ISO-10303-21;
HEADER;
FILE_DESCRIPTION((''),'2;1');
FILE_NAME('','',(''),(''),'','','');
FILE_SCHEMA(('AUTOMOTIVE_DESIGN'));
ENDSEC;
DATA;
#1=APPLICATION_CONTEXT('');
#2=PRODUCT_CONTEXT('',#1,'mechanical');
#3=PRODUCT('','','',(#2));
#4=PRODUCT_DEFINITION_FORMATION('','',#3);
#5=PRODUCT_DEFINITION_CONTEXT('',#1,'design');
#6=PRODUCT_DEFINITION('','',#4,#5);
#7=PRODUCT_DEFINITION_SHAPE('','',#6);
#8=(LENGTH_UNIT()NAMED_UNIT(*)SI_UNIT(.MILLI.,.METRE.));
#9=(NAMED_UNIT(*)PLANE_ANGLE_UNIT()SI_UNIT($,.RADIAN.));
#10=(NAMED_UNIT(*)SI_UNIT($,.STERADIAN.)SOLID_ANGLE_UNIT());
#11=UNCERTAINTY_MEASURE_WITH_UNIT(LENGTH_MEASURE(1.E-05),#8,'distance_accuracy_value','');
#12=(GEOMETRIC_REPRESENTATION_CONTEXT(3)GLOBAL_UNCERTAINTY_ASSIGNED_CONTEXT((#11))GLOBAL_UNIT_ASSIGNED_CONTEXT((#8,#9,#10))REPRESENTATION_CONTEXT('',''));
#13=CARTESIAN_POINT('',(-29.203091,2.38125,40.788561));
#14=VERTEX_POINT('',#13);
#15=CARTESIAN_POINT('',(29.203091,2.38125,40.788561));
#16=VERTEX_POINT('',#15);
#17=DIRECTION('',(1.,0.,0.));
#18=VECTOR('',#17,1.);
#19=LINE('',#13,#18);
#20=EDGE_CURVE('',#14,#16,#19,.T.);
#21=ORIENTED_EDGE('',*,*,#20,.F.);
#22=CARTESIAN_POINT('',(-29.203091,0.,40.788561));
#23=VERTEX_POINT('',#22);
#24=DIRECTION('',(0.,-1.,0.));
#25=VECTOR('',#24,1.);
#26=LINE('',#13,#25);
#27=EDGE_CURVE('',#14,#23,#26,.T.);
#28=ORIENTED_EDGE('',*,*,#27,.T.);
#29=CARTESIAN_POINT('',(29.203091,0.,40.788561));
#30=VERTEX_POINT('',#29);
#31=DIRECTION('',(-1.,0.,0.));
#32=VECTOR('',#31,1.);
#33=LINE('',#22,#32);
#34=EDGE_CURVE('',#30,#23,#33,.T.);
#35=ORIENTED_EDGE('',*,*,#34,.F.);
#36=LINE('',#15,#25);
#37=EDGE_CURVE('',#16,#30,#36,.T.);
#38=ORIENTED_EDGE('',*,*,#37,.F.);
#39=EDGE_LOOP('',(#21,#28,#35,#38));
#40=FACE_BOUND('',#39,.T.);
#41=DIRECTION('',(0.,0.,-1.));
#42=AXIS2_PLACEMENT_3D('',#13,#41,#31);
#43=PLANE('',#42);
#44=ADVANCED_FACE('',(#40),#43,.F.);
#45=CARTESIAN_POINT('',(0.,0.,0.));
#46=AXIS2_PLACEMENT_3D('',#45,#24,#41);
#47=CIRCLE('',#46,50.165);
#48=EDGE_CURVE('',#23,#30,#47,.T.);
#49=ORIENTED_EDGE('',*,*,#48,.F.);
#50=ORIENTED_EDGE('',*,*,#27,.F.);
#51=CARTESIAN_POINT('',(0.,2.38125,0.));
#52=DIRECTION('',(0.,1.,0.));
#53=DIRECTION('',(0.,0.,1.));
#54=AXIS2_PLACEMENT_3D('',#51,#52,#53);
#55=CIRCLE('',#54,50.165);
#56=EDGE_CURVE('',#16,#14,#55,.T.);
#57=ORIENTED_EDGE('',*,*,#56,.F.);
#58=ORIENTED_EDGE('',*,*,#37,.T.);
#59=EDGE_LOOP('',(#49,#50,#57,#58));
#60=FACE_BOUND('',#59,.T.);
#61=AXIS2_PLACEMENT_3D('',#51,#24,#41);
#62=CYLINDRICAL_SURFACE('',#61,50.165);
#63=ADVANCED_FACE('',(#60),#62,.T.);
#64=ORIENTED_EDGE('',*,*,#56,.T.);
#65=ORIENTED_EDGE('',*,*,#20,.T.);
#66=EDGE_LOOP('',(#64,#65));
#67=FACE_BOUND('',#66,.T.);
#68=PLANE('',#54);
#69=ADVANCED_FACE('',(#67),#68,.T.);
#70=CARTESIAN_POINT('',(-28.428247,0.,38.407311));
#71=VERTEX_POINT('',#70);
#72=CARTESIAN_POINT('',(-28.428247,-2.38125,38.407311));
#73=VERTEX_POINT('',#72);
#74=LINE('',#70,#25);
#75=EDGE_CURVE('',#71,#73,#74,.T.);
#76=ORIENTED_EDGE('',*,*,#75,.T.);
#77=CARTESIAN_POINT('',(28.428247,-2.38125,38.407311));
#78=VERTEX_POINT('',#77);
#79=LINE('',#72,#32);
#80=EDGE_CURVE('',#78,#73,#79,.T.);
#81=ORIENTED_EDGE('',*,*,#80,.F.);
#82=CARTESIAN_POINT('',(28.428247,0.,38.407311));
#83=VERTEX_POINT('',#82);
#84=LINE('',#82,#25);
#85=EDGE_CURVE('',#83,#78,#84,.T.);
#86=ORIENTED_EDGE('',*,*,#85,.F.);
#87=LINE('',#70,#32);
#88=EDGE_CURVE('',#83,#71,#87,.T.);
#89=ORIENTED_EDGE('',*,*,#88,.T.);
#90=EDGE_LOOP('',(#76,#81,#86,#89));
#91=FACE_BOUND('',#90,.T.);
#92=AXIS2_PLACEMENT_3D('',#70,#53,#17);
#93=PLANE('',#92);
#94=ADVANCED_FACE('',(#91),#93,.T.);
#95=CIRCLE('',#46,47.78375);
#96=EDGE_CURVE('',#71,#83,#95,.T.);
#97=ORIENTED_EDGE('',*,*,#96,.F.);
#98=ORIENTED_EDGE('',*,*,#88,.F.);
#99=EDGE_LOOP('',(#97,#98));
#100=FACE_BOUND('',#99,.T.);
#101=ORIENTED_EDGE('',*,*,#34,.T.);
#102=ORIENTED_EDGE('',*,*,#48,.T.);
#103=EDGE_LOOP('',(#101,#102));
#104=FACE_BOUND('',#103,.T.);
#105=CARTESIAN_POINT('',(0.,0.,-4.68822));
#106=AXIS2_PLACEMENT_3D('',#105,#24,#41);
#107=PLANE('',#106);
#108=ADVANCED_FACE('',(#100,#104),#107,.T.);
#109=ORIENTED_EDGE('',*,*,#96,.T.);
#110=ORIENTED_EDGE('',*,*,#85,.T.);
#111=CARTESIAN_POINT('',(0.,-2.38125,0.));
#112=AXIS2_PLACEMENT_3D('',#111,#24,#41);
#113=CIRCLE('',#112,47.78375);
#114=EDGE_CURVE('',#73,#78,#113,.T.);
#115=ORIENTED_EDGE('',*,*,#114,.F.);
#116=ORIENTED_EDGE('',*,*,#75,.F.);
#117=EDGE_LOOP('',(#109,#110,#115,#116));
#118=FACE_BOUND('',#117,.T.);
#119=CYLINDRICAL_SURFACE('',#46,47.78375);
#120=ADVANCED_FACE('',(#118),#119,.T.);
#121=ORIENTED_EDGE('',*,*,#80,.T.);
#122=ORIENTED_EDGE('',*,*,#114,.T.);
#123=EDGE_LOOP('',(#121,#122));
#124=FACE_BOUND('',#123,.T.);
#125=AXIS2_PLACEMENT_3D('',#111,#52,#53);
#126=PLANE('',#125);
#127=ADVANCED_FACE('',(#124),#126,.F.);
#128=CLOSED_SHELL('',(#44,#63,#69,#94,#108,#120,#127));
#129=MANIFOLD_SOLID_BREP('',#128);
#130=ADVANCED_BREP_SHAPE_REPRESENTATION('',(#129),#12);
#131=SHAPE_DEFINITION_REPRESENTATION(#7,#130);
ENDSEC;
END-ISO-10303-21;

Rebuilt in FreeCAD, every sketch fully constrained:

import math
import FreeCAD as App
import Part
import Sketcher

V = App.Vector
Q = App.Units.Quantity


def add_polygon(sketch, points):
    """Adds a closed chain of lines whose ends are joined by coincident constraints."""
    first, n = sketch.GeometryCount, len(points)
    for a, b in zip(points, points[1:] + points[:1]):
        sketch.addGeometry(Part.LineSegment(App.Vector(*a, 0), App.Vector(*b, 0)), False)
    for i in range(n):
        sketch.addConstraint(Sketcher.Constraint("Coincident", first + i, 2, first + (i + 1) % n, 1))

doc = App.newDocument("Part")
body = doc.addObject("PartDesign::Body", "Body")

sketch1 = body.newObject("Sketcher::SketchObject", "Sketch")
sketch1.AttachmentSupport = (doc.getObject("XZ_Plane"), [""])
sketch1.MapMode = "FlatFace"
sketch1.addGeometry([
    Part.LineSegment(V(-29, 41, 0), V(29, 41, 0)),
    Part.ArcOfCircle(Part.Circle(V(0, 0, 0), V(0, 0, 1), 50), math.radians(126), math.radians(414)),
], False)
sketch1.addConstraint([
    Sketcher.Constraint("Coincident", 0, 1, 1, 1),
    Sketcher.Constraint("Coincident", 1, 2, 0, 2),
    Sketcher.Constraint("Horizontal", 0),
    Sketcher.Constraint("Coincident", 1, 3, -1, 1),
    Sketcher.Constraint("Radius", 1, Q("1.975 in")),
    Sketcher.Constraint("DistanceX", 0, 1, 0, 2, 58.406182),
])
pad1 = body.newObject("PartDesign::Pad", "Pad")
pad1.Profile = sketch1
pad1.Length = Q("0.1875 in")
pad1.Midplane = True

sketch2 = body.newObject("Sketcher::SketchObject", "Sketch001")
sketch2.AttachmentSupport = (doc.getObject("XZ_Plane"), [""])
sketch2.MapMode = "FlatFace"
sketch2.AttachmentOffset = App.Placement(V(0, 0, 0.09375 * 25.4), App.Rotation())
add_polygon(sketch2, [(-65, 55), (-65, -65), (65, -65), (65, 55)])
sketch2.addGeometry(Part.ArcOfCircle(Part.Circle(V(0, 0, 0), V(0, 0, 1), 48), math.radians(127), math.radians(413)), False)
sketch2.addGeometry(Part.LineSegment(V(-28, 38, 0), V(28, 38, 0)), False)
sketch2.addConstraint([
    Sketcher.Constraint("Coincident", 4, 1, 5, 1),
    Sketcher.Constraint("Coincident", 5, 2, 4, 2),
    Sketcher.Constraint("Vertical", 0),
    Sketcher.Constraint("Horizontal", 1),
    Sketcher.Constraint("Vertical", 2),
    Sketcher.Constraint("Horizontal", 3),
    Sketcher.Constraint("Horizontal", 5),
    Sketcher.Constraint("Coincident", 4, 3, -1, 1),
    Sketcher.Constraint("Radius", 4, 47.78375),
    Sketcher.Constraint("DistanceX", 1, 1, 1, 2, 129.43),
    Sketcher.Constraint("DistanceY", 0, 2, 0, 1, 120.054),
    Sketcher.Constraint("DistanceX", 0, 2, -1, 1, 64.715),
    Sketcher.Constraint("DistanceY", 0, 2, -1, 1, 64.715),
    Sketcher.Constraint("DistanceX", 5, 1, 5, 2, 56.856495),
])
pocket1 = body.newObject("PartDesign::Pocket", "Pocket")
pocket1.Profile = sketch2
pocket1.Length = Q("0.09375 in")

doc.recompute()
